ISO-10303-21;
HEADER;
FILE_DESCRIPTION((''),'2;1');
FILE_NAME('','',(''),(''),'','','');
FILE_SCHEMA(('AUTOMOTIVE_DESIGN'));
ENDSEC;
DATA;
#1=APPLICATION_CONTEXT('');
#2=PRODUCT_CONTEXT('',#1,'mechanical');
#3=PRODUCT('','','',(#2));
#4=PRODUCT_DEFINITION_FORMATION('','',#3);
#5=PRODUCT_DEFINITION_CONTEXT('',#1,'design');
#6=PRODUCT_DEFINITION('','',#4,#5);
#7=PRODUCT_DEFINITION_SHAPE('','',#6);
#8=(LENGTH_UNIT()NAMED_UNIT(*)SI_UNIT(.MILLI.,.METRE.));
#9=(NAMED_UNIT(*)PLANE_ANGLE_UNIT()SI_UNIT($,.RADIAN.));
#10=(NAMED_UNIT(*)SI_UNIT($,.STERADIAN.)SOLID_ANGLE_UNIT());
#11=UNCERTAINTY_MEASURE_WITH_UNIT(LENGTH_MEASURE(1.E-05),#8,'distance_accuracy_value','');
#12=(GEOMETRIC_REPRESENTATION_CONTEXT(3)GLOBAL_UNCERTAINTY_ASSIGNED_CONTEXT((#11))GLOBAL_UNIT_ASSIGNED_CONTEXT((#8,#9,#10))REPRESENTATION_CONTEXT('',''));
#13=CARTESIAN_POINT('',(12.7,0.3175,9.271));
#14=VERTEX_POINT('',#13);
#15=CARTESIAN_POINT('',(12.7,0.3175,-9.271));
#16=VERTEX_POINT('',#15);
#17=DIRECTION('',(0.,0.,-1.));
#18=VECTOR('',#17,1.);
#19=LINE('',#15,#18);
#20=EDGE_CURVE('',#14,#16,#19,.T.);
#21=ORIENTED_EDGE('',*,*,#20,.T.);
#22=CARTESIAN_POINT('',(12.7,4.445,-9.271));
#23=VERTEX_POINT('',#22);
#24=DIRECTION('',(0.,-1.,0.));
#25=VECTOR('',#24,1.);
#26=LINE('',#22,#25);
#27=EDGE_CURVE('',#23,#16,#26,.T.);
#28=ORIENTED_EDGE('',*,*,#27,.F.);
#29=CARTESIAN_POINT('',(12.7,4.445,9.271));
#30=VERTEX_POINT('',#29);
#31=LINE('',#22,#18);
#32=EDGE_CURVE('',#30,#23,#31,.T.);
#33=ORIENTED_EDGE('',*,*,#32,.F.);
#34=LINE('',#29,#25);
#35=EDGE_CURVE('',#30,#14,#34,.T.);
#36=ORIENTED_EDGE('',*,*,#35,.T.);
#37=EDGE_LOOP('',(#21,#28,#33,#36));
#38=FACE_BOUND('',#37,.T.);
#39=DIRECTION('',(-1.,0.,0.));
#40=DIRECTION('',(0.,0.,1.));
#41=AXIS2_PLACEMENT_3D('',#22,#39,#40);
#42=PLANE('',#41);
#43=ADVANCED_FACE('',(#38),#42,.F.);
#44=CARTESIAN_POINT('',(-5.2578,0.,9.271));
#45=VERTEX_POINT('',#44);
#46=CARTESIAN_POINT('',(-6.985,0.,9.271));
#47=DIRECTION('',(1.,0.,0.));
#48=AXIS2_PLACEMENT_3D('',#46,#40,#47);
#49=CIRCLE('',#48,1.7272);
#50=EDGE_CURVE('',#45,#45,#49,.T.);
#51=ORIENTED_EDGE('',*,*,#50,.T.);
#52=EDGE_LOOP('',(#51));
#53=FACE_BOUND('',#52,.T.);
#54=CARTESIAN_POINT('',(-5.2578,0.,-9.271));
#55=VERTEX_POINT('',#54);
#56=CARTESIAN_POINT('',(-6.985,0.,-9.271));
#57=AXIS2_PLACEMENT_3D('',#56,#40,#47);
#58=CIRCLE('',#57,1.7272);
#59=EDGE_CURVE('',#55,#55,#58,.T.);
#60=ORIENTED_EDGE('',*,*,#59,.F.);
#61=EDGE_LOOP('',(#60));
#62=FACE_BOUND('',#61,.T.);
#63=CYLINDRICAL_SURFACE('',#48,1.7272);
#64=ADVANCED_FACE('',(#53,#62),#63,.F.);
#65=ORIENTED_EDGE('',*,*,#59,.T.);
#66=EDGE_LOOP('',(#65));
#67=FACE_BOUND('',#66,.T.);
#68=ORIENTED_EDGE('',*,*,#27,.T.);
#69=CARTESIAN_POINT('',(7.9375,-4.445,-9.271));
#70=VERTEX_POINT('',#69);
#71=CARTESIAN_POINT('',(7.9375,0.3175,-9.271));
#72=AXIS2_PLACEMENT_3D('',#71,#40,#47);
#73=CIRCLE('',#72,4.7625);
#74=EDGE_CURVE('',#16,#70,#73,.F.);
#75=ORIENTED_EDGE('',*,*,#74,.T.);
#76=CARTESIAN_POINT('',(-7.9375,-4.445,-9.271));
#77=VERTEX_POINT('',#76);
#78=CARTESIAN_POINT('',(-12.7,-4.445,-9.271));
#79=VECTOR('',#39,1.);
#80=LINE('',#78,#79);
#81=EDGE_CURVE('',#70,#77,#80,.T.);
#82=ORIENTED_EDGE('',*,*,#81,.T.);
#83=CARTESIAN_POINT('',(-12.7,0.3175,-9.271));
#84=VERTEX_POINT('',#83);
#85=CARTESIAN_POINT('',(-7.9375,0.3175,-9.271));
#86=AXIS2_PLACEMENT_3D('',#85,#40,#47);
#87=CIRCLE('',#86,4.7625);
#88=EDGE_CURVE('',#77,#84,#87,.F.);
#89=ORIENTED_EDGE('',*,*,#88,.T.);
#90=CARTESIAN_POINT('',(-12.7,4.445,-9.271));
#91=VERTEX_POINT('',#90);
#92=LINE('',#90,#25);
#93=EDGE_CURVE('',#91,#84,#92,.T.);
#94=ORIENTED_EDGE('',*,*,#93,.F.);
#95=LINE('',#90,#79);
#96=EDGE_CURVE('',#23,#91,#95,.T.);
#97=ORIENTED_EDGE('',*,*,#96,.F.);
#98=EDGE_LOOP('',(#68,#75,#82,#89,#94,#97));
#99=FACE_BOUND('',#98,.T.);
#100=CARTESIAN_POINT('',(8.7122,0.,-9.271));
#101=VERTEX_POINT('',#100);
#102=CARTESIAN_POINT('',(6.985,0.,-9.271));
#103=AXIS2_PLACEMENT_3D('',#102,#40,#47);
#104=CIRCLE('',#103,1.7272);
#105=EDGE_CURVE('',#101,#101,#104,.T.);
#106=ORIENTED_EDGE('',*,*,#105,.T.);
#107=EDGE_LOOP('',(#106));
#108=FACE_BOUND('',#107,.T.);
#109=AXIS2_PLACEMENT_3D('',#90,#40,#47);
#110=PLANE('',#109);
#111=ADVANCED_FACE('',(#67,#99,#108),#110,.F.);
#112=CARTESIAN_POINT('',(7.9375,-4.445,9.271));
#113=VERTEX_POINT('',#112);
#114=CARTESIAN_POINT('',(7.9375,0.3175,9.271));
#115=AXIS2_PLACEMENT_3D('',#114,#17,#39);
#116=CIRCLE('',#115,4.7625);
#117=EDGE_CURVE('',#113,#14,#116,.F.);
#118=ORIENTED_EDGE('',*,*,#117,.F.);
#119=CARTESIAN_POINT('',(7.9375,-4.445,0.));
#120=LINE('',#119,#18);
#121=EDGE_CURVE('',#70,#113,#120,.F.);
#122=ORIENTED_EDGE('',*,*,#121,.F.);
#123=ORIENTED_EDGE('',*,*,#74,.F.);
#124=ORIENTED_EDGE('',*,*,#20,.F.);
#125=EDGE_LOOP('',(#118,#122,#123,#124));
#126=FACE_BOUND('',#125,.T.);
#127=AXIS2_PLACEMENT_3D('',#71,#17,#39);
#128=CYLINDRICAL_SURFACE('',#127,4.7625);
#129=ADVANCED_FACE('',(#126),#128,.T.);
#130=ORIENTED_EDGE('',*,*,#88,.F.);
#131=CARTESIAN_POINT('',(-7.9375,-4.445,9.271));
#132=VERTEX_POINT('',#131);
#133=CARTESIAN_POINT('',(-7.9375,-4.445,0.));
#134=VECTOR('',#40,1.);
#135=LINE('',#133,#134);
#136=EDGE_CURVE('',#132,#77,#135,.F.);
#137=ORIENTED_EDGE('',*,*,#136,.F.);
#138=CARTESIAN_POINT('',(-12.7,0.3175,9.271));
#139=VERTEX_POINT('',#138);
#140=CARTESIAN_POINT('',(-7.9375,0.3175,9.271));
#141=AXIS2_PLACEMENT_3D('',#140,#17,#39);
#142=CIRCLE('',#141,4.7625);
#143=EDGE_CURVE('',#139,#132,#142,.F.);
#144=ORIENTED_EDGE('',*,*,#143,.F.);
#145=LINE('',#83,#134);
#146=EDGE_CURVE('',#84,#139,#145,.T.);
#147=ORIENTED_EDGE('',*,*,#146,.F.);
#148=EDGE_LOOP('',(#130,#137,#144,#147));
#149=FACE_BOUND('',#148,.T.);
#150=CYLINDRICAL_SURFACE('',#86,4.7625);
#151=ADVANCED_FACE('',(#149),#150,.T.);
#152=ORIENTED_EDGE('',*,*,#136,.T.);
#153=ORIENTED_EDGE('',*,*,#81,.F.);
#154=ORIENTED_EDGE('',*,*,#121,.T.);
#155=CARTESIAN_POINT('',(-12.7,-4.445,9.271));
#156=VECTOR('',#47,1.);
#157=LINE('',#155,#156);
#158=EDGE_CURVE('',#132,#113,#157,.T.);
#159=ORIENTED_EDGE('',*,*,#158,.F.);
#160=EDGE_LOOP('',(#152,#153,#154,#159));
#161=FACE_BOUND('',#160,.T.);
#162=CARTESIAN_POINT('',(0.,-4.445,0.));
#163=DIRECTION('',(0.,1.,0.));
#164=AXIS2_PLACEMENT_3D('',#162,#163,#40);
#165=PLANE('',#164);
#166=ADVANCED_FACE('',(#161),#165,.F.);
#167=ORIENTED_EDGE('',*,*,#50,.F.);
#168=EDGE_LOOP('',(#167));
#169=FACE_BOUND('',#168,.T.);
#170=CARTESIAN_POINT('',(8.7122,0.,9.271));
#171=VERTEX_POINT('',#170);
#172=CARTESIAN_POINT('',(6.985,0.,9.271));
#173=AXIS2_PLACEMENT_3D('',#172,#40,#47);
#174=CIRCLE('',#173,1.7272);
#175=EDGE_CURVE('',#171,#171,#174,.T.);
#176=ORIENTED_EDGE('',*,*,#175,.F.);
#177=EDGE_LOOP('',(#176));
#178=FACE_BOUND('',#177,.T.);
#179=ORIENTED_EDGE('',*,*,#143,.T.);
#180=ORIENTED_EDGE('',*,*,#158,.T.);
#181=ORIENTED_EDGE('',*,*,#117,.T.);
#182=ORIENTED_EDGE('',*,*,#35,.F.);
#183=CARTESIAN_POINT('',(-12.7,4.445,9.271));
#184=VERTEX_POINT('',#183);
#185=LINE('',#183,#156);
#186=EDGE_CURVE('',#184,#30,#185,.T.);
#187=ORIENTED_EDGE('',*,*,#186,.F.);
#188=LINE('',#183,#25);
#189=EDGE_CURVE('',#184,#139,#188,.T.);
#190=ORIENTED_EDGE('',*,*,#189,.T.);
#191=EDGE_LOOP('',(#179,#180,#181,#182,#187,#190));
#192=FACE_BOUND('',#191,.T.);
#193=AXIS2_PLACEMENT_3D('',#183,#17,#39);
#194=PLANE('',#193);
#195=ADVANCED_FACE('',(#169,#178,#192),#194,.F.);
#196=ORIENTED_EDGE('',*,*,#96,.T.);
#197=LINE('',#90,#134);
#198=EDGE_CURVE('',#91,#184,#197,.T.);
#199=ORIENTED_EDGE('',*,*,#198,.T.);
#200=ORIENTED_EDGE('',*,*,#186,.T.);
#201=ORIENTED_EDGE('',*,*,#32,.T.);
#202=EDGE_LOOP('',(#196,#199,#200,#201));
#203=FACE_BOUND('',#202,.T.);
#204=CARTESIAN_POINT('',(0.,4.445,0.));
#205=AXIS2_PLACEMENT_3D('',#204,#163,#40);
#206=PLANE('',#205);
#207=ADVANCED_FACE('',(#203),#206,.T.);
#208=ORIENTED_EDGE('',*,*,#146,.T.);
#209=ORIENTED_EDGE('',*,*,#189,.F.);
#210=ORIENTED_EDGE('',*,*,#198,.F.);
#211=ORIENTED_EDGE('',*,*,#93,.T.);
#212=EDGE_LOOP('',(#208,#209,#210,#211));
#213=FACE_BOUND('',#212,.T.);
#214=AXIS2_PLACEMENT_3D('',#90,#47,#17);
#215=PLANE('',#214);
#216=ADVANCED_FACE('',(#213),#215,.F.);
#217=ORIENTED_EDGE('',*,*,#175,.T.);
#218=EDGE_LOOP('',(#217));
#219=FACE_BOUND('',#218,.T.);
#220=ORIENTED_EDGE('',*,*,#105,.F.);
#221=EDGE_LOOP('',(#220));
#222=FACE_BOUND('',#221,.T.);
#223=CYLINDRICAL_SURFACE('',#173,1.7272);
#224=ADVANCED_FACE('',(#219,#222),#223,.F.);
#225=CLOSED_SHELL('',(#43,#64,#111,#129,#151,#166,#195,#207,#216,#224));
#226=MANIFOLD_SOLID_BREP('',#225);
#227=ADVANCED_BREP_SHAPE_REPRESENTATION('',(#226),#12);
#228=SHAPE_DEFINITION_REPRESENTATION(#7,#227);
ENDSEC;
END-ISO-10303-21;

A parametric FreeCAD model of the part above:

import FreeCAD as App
import Part
import Sketcher
Q = App.Units.Quantity


def edges_at(feature, points):
    """Names of the edges that pass closest to the given points."""
    edges = feature.Shape.Edges
    near = lambda p: min(range(len(edges)), key=lambda i: edges[i].distToShape(Part.Vertex(*p))[0])
    return sorted({f"Edge{near(p) + 1}" for p in points})


def add_polygon(sketch, points):
    """Adds a closed chain of lines whose ends are joined by coincident constraints."""
    first, n = sketch.GeometryCount, len(points)
    for a, b in zip(points, points[1:] + points[:1]):
        sketch.addGeometry(Part.LineSegment(App.Vector(*a, 0), App.Vector(*b, 0)), False)
    for i in range(n):
        sketch.addConstraint(Sketcher.Constraint("Coincident", first + i, 2, first + (i + 1) % n, 1))

doc = App.newDocument("Part")
params = doc.addObject("Spreadsheet::Sheet", "Params")
for row, (alias, value) in enumerate([
    ("sketch1_width", "1 in"),
    ("sketch1_height", "0.73 in"),
    ("pad1_length", "0.35 in"),
    ("sketch2_diameter", "0.136 in"),
    ("hole_diameter", "0.136 in"),
    ("fillet_radius", "0.1875 in"),
], start=1):
    params.set(f"A{row}", alias)
    params.set(f"B{row}", "=" + value)
    params.setAlias(f"B{row}", alias)

body = doc.addObject("PartDesign::Body", "Body")

# Sketch on XZ plane
sketch1 = body.newObject("Sketcher::SketchObject", "Sketch")
sketch1.AttachmentSupport = (doc.getObject("XZ_Plane"), [""])
sketch1.MapMode = "FlatFace"
add_polygon(sketch1, [(-13, -9), (-13, 9), (13, 9), (13, -9)])  # lines 0-3
sketch1.addConstraint(Sketcher.Constraint("Vertical", 0))
sketch1.addConstraint(Sketcher.Constraint("Horizontal", 1))
sketch1.addConstraint(Sketcher.Constraint("Vertical", 2))
sketch1.addConstraint(Sketcher.Constraint("Horizontal", 3))
sketch1.addConstraint(Sketcher.Constraint("Symmetric", 0, 2, 2, 2, -1, 1))
sketch1.addConstraint(Sketcher.Constraint("DistanceX", 1, 1, 1, 2, Q("1 in")))
sketch1.addConstraint(Sketcher.Constraint("DistanceY", 0, 1, 0, 2, Q("0.73 in")))
sketch1.setExpression("Constraints[9]", "Params.sketch1_width")
sketch1.setExpression("Constraints[10]", "Params.sketch1_height")
pad1 = body.newObject("PartDesign::Pad", "Pad")
pad1.Profile = sketch1
pad1.setExpression("Length", "Params.pad1_length")
pad1.Midplane = True

# Sketch on XY plane
sketch2 = body.newObject("Sketcher::SketchObject", "Sketch001")
sketch2.AttachmentSupport = (doc.getObject("XY_Plane"), [""])
sketch2.MapMode = "FlatFace"
sketch2.AttachmentOffset = App.Placement(App.Vector(0, 0, 0.365 * 25.4), App.Rotation())
sketch2.addGeometry(Part.Circle(App.Vector(-7, 0, 0), App.Vector(0, 0, 1), 1.7), False)
sketch2.addGeometry(Part.Circle(App.Vector(7, 0, 0), App.Vector(0, 0, 1), 1.7), False)
sketch2.addConstraint(Sketcher.Constraint("Equal", 0, 1))
sketch2.addConstraint(Sketcher.Constraint("Symmetric", 0, 3, 1, 3, -1, 1))
sketch2.addConstraint(Sketcher.Constraint("PointOnObject", 0, 3, -1))
sketch2.addConstraint(Sketcher.Constraint("Diameter", 0, Q("0.136 in")))
sketch2.addConstraint(Sketcher.Constraint("DistanceX", 0, 3, 1, 3, Q("0.55 in")))
sketch2.setExpression("Constraints[3]", "Params.sketch2_diameter")
doc.recompute()
hole = body.newObject("PartDesign::Hole", "Hole")
hole.Profile = sketch2
hole.ThreadType = "None"
hole.setExpression("Diameter", "Params.hole_diameter")
hole.DepthType = "ThroughAll"
doc.recompute()

fillet = body.newObject("PartDesign::Fillet", "Fillet")
fillet.Base = (hole, edges_at(hole, [(-12.7, -4.445, 0), (12.7, -4.445, 0)]))
fillet.setExpression("Radius", "Params.fillet_radius")

doc.recompute()
